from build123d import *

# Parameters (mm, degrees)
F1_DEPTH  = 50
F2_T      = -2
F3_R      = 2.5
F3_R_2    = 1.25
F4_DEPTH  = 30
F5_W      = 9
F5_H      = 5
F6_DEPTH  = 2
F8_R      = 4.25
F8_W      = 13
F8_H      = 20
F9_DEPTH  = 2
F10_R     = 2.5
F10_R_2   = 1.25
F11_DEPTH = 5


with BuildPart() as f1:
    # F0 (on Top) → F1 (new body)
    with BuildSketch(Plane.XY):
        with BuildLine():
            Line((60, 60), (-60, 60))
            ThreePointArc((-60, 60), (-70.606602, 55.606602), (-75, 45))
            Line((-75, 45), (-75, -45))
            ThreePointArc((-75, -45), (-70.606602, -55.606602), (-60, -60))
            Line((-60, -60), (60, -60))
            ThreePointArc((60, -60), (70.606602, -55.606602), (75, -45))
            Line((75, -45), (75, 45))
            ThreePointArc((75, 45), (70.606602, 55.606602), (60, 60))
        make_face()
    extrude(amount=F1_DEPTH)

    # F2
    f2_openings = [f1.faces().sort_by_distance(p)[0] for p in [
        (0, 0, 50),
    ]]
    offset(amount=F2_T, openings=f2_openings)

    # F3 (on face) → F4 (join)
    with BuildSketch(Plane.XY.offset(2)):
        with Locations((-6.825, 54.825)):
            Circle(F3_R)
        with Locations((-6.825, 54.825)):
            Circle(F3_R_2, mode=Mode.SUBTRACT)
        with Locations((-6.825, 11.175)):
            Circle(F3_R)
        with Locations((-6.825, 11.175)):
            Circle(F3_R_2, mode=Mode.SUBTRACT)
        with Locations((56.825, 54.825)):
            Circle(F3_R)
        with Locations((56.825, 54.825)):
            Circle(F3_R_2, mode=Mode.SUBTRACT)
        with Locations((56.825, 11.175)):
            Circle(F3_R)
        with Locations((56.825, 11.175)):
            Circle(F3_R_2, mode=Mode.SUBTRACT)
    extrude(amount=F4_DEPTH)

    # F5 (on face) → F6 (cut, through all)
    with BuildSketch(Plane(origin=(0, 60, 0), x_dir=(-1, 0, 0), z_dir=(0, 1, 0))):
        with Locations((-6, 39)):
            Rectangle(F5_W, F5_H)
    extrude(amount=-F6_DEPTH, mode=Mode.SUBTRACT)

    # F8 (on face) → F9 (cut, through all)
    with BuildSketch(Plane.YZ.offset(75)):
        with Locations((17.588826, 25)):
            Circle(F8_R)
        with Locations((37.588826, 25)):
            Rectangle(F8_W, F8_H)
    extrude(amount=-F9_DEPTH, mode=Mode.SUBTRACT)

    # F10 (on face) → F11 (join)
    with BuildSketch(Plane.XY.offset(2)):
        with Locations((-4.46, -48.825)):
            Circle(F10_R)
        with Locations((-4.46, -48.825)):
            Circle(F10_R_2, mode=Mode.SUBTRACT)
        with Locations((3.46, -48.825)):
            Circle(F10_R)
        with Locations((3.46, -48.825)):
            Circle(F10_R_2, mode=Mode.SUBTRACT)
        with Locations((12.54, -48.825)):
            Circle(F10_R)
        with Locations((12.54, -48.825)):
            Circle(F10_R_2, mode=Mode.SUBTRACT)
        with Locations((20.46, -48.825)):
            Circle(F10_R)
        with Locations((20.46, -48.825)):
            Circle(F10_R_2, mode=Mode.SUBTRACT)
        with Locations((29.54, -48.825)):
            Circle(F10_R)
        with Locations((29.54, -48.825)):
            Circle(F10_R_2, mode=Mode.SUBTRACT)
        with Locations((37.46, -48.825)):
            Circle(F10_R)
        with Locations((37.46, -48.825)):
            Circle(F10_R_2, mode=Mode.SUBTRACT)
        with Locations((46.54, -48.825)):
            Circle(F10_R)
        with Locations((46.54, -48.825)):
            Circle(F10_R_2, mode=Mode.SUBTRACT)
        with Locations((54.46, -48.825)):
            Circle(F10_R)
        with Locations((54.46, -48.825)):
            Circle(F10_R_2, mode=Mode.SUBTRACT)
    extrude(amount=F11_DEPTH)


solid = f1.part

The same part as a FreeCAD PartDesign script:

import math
import FreeCAD as App
import Part
import Sketcher

V = App.Vector


def faces_at(feature, points):
    """Names of the faces that lie closest to the given points."""
    faces = feature.Shape.Faces
    near = lambda p: min(range(len(faces)), key=lambda i: faces[i].distToShape(Part.Vertex(*p))[0])
    return sorted({f"Face{near(p) + 1}" for p in points})


def add_polygon(sketch, points):
    """Adds a closed chain of lines whose ends are joined by coincident constraints."""
    first, n = sketch.GeometryCount, len(points)
    for a, b in zip(points, points[1:] + points[:1]):
        sketch.addGeometry(Part.LineSegment(App.Vector(*a, 0), App.Vector(*b, 0)), False)
    for i in range(n):
        sketch.addConstraint(Sketcher.Constraint("Coincident", first + i, 2, first + (i + 1) % n, 1))

doc = App.newDocument("Part")
body = doc.addObject("PartDesign::Body", "Body")

sketch1 = body.newObject("Sketcher::SketchObject", "Sketch")
sketch1.AttachmentSupport = (doc.getObject("XY_Plane"), [""])
sketch1.MapMode = "FlatFace"
sketch1.addGeometry([
    Part.LineSegment(V(60, 60, 0), V(-60, 60, 0)),
    Part.ArcOfCircle(Part.Circle(V(-60.000001, 45.000001, 0), V(0, 0, 1), 14.999999), math.radians(89.999996), math.radians(180.000004)),
    Part.LineSegment(V(-75, 45, 0), V(-75, -45, 0)),
    Part.ArcOfCircle(Part.Circle(V(-60.000001, -45.000001, 0), V(0, 0, 1), 14.999999), math.radians(179.999996), math.radians(270.000004)),
    Part.LineSegment(V(-60, -60, 0), V(60, -60, 0)),
    Part.ArcOfCircle(Part.Circle(V(60.000001, -45.000001, 0), V(0, 0, 1), 14.999999), math.radians(-90.000004), math.radians(0.000004)),
    Part.LineSegment(V(75, -45, 0), V(75, 45, 0)),
    Part.ArcOfCircle(Part.Circle(V(60.000001, 45.000001, 0), V(0, 0, 1), 14.999999), math.radians(-0.000004), math.radians(90.000004)),
], False)
sketch1.addConstraint([
    Sketcher.Constraint("Tangent", 0, 2, 1, 1),
    Sketcher.Constraint("Tangent", 1, 2, 2, 1),
    Sketcher.Constraint("Tangent", 2, 2, 3, 1),
    Sketcher.Constraint("Tangent", 3, 2, 4, 1),
    Sketcher.Constraint("Tangent", 4, 2, 5, 1),
    Sketcher.Constraint("Tangent", 5, 2, 6, 1),
    Sketcher.Constraint("Tangent", 6, 2, 7, 1),
    Sketcher.Constraint("Tangent", 7, 2, 0, 1),
    Sketcher.Constraint("Horizontal", 0),
    Sketcher.Constraint("Vertical", 2),
    Sketcher.Constraint("Horizontal", 4),
    Sketcher.Constraint("Vertical", 6),
    Sketcher.Constraint("Equal", 1, 3),
    Sketcher.Constraint("Equal", 3, 5),
    Sketcher.Constraint("Equal", 5, 7),
    Sketcher.Constraint("Symmetric", 1, 3, 5, 3, -1, 1),
    Sketcher.Constraint("Radius", 1, 14.999999),
    Sketcher.Constraint("DistanceX", 0, 2, 0, 1, 120.0),
    Sketcher.Constraint("DistanceY", 2, 2, 2, 1, 90.0),
])
pad1 = body.newObject("PartDesign::Pad", "Pad")
pad1.Profile = sketch1
pad1.Length = 50
doc.recompute()

thickness = body.newObject("PartDesign::Thickness", "Thickness")
thickness.Base = (pad1, faces_at(pad1, [(0, 0, 50)]))
thickness.Value = 2
thickness.Reversed = True
thickness.Join = "Arc"

sketch2 = body.newObject("Sketcher::SketchObject", "Sketch001")
sketch2.AttachmentSupport = (doc.getObject("XY_Plane"), [""])
sketch2.MapMode = "FlatFace"
sketch2.AttachmentOffset = App.Placement(V(0, 0, 2), App.Rotation())
sketch2.addGeometry([
    Part.Circle(V(-6.825, 54.825, 0), V(0, 0, 1), 2.5),
    Part.Circle(V(-6.825, 54.825, 0), V(0, 0, 1), 1.25),
    Part.Circle(V(-6.825, 11.175, 0), V(0, 0, 1), 2.5),
    Part.Circle(V(-6.825, 11.175, 0), V(0, 0, 1), 1.25),
    Part.Circle(V(56.825, 54.825, 0), V(0, 0, 1), 2.5),
    Part.Circle(V(56.825, 54.825, 0), V(0, 0, 1), 1.25),
    Part.Circle(V(56.825, 11.175, 0), V(0, 0, 1), 2.5),
    Part.Circle(V(56.825, 11.175, 0), V(0, 0, 1), 1.25),
], False)
sketch2.addConstraint([
    Sketcher.Constraint("Coincident", 1, 3, 0, 3),
    Sketcher.Constraint("Coincident", 3, 3, 2, 3),
    Sketcher.Constraint("Coincident", 5, 3, 4, 3),
    Sketcher.Constraint("Coincident", 7, 3, 6, 3),
    Sketcher.Constraint("Equal", 0, 2),
    Sketcher.Constraint("Equal", 1, 3),
    Sketcher.Constraint("Equal", 2, 4),
    Sketcher.Constraint("Equal", 3, 5),
    Sketcher.Constraint("Equal", 4, 6),
    Sketcher.Constraint("Equal", 5, 7),
    Sketcher.Constraint("Horizontal", 1, 3, 4, 3),
    Sketcher.Constraint("Horizontal", 3, 3, 6, 3),
    Sketcher.Constraint("Vertical", 1, 3, 2, 3),
    Sketcher.Constraint("Vertical", 5, 3, 6, 3),
    Sketcher.Constraint("Diameter", 0, 5.0),
    Sketcher.Constraint("Diameter", 1, 2.5),
    Sketcher.Constraint("DistanceY", 2, 3, 0, 3, 43.65),
    Sketcher.Constraint("DistanceX", 0, 3, 4, 3, 63.65),
    Sketcher.Constraint("DistanceX", 0, 3, -1, 1, 6.825),
    Sketcher.Constraint("DistanceY", -1, 1, 0, 3, 54.825),
])
pad2 = body.newObject("PartDesign::Pad", "Pad001")
pad2.Profile = sketch2
pad2.Length = 30

sketch3 = body.newObject("Sketcher::SketchObject", "Sketch002")
sketch3.AttachmentSupport = (doc.getObject("XZ_Plane"), [""])
sketch3.MapMode = "FlatFace"
sketch3.AttachmentOffset = App.Placement(V(0, 0, -60), App.Rotation())
add_polygon(sketch3, [(10.5, 41.5), (10.5, 36.5), (1.5, 36.5), (1.5, 41.5)])
sketch3.addConstraint([
    Sketcher.Constraint("Vertical", 0),
    Sketcher.Constraint("Horizontal", 1),
    Sketcher.Constraint("Vertical", 2),
    Sketcher.Constraint("Horizontal", 3),
    Sketcher.Constraint("DistanceX", 1, 2, 1, 1, 9.0),
    Sketcher.Constraint("DistanceY", 0, 2, 0, 1, 5.0),
    Sketcher.Constraint("DistanceX", -1, 1, 0, 2, 10.5),
    Sketcher.Constraint("DistanceY", -1, 1, 0, 2, 36.5),
])
pocket1 = body.newObject("PartDesign::Pocket", "Pocket")
pocket1.Profile = sketch3
pocket1.Length = 2
pocket1.Reversed = True

sketch4 = body.newObject("Sketcher::SketchObject", "Sketch003")
sketch4.AttachmentSupport = (doc.getObject("YZ_Plane"), [""])
sketch4.MapMode = "FlatFace"
sketch4.AttachmentOffset = App.Placement(V(0, 0, 75), App.Rotation())
sketch4.addGeometry(Part.Circle(V(17.588826, 25, 0), V(0, 0, 1), 4.25), False)
add_polygon(sketch4, [(31.088826, 35), (31.088826, 15), (44.088826, 15), (44.088826, 35)])
sketch4.addConstraint([
    Sketcher.Constraint("Vertical", 1),
    Sketcher.Constraint("Horizontal", 2),
    Sketcher.Constraint("Vertical", 3),
    Sketcher.Constraint("Horizontal", 4),
    Sketcher.Constraint("Diameter", 0, 8.5),
    Sketcher.Constraint("DistanceX", 2, 1, 2, 2, 13.0),
    Sketcher.Constraint("DistanceY", 1, 2, 1, 1, 20.0),
    Sketcher.Constraint("DistanceY", -1, 1, 0, 3, 25.0),
    Sketcher.Constraint("DistanceY", -1, 1, 1, 2, 15.0),
    Sketcher.Constraint("DistanceX", 0, 3, 1, 2, 13.5),
    Sketcher.Constraint("DistanceX", -1, 1, 0, 3, 17.588826),
])
pocket2 = body.newObject("PartDesign::Pocket", "Pocket001")
pocket2.Profile = sketch4
pocket2.Length = 2

sketch5 = body.newObject("Sketcher::SketchObject", "Sketch004")
sketch5.AttachmentSupport = (doc.getObject("XY_Plane"), [""])
sketch5.MapMode = "FlatFace"
sketch5.AttachmentOffset = App.Placement(V(0, 0, 2), App.Rotation())
sketch5.addGeometry([
    Part.Circle(V(-4.46, -48.825, 0), V(0, 0, 1), 2.5),
    Part.Circle(V(-4.46, -48.825, 0), V(0, 0, 1), 1.25),
    Part.Circle(V(3.46, -48.825, 0), V(0, 0, 1), 2.5),
    Part.Circle(V(3.46, -48.825, 0), V(0, 0, 1), 1.25),
    Part.Circle(V(12.54, -48.825, 0), V(0, 0, 1), 2.5),
    Part.Circle(V(12.54, -48.825, 0), V(0, 0, 1), 1.25),
    Part.Circle(V(20.46, -48.825, 0), V(0, 0, 1), 2.5),
    Part.Circle(V(20.46, -48.825, 0), V(0, 0, 1), 1.25),
    Part.Circle(V(29.54, -48.825, 0), V(0, 0, 1), 2.5),
    Part.Circle(V(29.54, -48.825, 0), V(0, 0, 1), 1.25),
    Part.Circle(V(37.46, -48.825, 0), V(0, 0, 1), 2.5),
    Part.Circle(V(37.46, -48.825, 0), V(0, 0, 1), 1.25),
    Part.Circle(V(46.54, -48.825, 0), V(0, 0, 1), 2.5),
    Part.Circle(V(46.54, -48.825, 0), V(0, 0, 1), 1.25),
    Part.Circle(V(54.46, -48.825, 0), V(0, 0, 1), 2.5),
    Part.Circle(V(54.46, -48.825, 0), V(0, 0, 1), 1.25),
], False)
sketch5.addConstraint([
    Sketcher.Constraint("Coincident", 1, 3, 0, 3),
    Sketcher.Constraint("Coincident", 3, 3, 2, 3),
    Sketcher.Constraint("Coincident", 5, 3, 4, 3),
    Sketcher.Constraint("Coincident", 7, 3, 6, 3),
    Sketcher.Constraint("Coincident", 9, 3, 8, 3),
    Sketcher.Constraint("Coincident", 11, 3, 10, 3),
    Sketcher.Constraint("Coincident", 13, 3, 12, 3),
    Sketcher.Constraint("Coincident", 15, 3, 14, 3),
    Sketcher.Constraint("Equal", 0, 2),
    Sketcher.Constraint("Equal", 1, 3),
    Sketcher.Constraint("Equal", 2, 4),
    Sketcher.Constraint("Equal", 3, 5),
    Sketcher.Constraint("Equal", 4, 6),
    Sketcher.Constraint("Equal", 5, 7),
    Sketcher.Constraint("Equal", 6, 8),
    Sketcher.Constraint("Equal", 7, 9),
    Sketcher.Constraint("Equal", 8, 10),
    Sketcher.Constraint("Equal", 9, 11),
    Sketcher.Constraint("Equal", 10, 12),
    Sketcher.Constraint("Equal", 11, 13),
    Sketcher.Constraint("Equal", 12, 14),
    Sketcher.Constraint("Equal", 13, 15),
    Sketcher.Constraint("Horizontal", 1, 3, 2, 3),
    Sketcher.Constraint("Horizontal", 3, 3, 4, 3),
    Sketcher.Constraint("Horizontal", 5, 3, 6, 3),
    Sketcher.Constraint("Horizontal", 7, 3, 8, 3),
    Sketcher.Constraint("Horizontal", 9, 3, 10, 3),
    Sketcher.Constraint("Horizontal", 11, 3, 12, 3),
    Sketcher.Constraint("Horizontal", 13, 3, 14, 3),
    Sketcher.Constraint("Diameter", 0, 5.0),
    Sketcher.Constraint("Diameter", 1, 2.5),
    Sketcher.Constraint("DistanceX", 0, 3, 4, 3, 17.0),
    Sketcher.Constraint("DistanceX", 2, 3, 6, 3, 17.0),
    Sketcher.Constraint("DistanceX", 4, 3, 8, 3, 17.0),
    Sketcher.Constraint("DistanceX", 6, 3, 10, 3, 17.0),
    Sketcher.Constraint("DistanceX", 8, 3, 12, 3, 17.0),
    Sketcher.Constraint("DistanceX", 10, 3, 14, 3, 17.0),
    Sketcher.Constraint("DistanceX", 0, 3, -1, 1, 4.46),
    Sketcher.Constraint("DistanceX", -1, 1, 2, 3, 3.46),
    Sketcher.Constraint("DistanceY", 0, 3, -1, 1, 48.825),
])
pad3 = body.newObject("PartDesign::Pad", "Pad002")
pad3.Profile = sketch5
pad3.Length = 5

doc.recompute()
